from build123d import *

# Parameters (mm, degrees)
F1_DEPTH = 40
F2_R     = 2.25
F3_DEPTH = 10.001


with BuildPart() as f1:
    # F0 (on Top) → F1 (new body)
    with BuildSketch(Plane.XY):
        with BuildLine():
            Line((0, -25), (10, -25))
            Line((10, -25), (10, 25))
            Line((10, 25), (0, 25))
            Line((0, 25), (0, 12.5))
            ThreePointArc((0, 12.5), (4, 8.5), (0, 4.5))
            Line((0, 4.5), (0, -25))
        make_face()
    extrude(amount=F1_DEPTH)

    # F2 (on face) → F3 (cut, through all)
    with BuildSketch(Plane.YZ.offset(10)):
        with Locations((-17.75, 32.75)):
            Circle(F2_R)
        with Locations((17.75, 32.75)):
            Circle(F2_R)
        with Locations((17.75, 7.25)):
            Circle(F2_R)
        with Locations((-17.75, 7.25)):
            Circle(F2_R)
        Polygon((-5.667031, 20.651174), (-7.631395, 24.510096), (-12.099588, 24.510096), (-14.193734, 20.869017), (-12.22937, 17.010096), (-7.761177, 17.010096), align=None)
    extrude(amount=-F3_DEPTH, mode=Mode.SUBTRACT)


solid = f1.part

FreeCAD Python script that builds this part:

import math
import FreeCAD as App
import Part
import Sketcher
from FreeCAD import Vector
Q = App.Units.Quantity

doc = App.newDocument("Part")
params = doc.addObject("Spreadsheet::Sheet", "Params")
for row, (alias, value) in enumerate([
    ("sketch1_radius", "4 mm"),
    ("sketch1_width", "10 mm"),
    ("sketch1_height", "50 mm"),
    ("sketch1_height2", "12.5 mm"),
    ("pad1_length", "40 mm"),
    ("sketch2_diameter", "4.5 mm"),
], start=1):
    params.set(f"A{row}", alias)
    params.set(f"B{row}", "=" + value)
    params.setAlias(f"B{row}", alias)

body = doc.addObject("PartDesign::Body", "Body")

sketch1 = body.newObject("Sketcher::SketchObject", "Sketch")
sketch1.AttachmentSupport = (doc.getObject("XY_Plane"), [""])
sketch1.MapMode = "FlatFace"
sketch1.addGeometry(Part.LineSegment(Vector(0, -25, 0), Vector(10, -25, 0)), False)
sketch1.addGeometry(Part.LineSegment(Vector(10, -25, 0), Vector(10, 25, 0)), False)
sketch1.addGeometry(Part.LineSegment(Vector(10, 25, 0), Vector(0, 25, 0)), False)
sketch1.addGeometry(Part.LineSegment(Vector(0, 25, 0), Vector(0, 12.5, 0)), False)
sketch1.addGeometry(Part.ArcOfCircle(Part.Circle(Vector(0, 8.5, 0), Vector(0, 0, 1), 4), math.radians(-90), math.radians(90)), False)
sketch1.addGeometry(Part.LineSegment(Vector(0, 4.5, 0), Vector(0, -25, 0)), False)
sketch1.addConstraint(Sketcher.Constraint("Coincident", 0, 2, 1, 1))
sketch1.addConstraint(Sketcher.Constraint("Coincident", 1, 2, 2, 1))
sketch1.addConstraint(Sketcher.Constraint("Coincident", 2, 2, 3, 1))
sketch1.addConstraint(Sketcher.Constraint("Coincident", 3, 2, 4, 2))
sketch1.addConstraint(Sketcher.Constraint("Coincident", 4, 1, 5, 1))
sketch1.addConstraint(Sketcher.Constraint("Coincident", 5, 2, 0, 1))
sketch1.addConstraint(Sketcher.Constraint("Horizontal", 0))
sketch1.addConstraint(Sketcher.Constraint("Vertical", 1))
sketch1.addConstraint(Sketcher.Constraint("Horizontal", 2))
sketch1.addConstraint(Sketcher.Constraint("Vertical", 3))
sketch1.addConstraint(Sketcher.Constraint("Vertical", 5))
sketch1.addConstraint(Sketcher.Constraint("Symmetric", 2, 2, 5, 2, -1, 1))
sketch1.addConstraint(Sketcher.Constraint("PointOnObject", 4, 3, -2))
sketch1.addConstraint(Sketcher.Constraint("PointOnObject", 2, 2, -2))
sketch1.addConstraint(Sketcher.Constraint("Radius", 4, Q("4 mm")))
sketch1.addConstraint(Sketcher.Constraint("DistanceX", 0, 1, 0, 2, Q("10 mm")))
sketch1.addConstraint(Sketcher.Constraint("DistanceY", 1, 1, 1, 2, Q("50 mm")))
sketch1.addConstraint(Sketcher.Constraint("DistanceY", 3, 2, 3, 1, Q("12.5 mm")))
sketch1.setExpression("Constraints[14]", "Params.sketch1_radius")
sketch1.setExpression("Constraints[15]", "Params.sketch1_width")
sketch1.setExpression("Constraints[16]", "Params.sketch1_height")
sketch1.setExpression("Constraints[17]", "Params.sketch1_height2")
pad1 = body.newObject("PartDesign::Pad", "Pad")
pad1.Profile = sketch1
pad1.setExpression("Length", "Params.pad1_length")

sketch2 = body.newObject("Sketcher::SketchObject", "Sketch001")
sketch2.AttachmentSupport = (doc.getObject("YZ_Plane"), [""])
sketch2.MapMode = "FlatFace"
sketch2.AttachmentOffset = App.Placement(Vector(0, 0, 10), App.Rotation())
sketch2.addGeometry(Part.Circle(Vector(-17.75, 32.75, 0), Vector(0, 0, 1), 2.25), False)
sketch2.addGeometry(Part.Circle(Vector(17.75, 32.75, 0), Vector(0, 0, 1), 2.25), False)
sketch2.addGeometry(Part.Circle(Vector(17.75, 7.25, 0), Vector(0, 0, 1), 2.25), False)
sketch2.addGeometry(Part.Circle(Vector(-17.75, 7.25, 0), Vector(0, 0, 1), 2.25), False)
sketch2.addGeometry(Part.LineSegment(Vector(-5.667031, 20.651174, 0), Vector(-7.631395, 24.510096, 0)), False)
sketch2.addGeometry(Part.LineSegment(Vector(-7.631395, 24.510096, 0), Vector(-12.099588, 24.510096, 0)), False)
sketch2.addGeometry(Part.LineSegment(Vector(-12.099588, 24.510096, 0), Vector(-14.193734, 20.869017, 0)), False)
sketch2.addGeometry(Part.LineSegment(Vector(-14.193734, 20.869017, 0), Vector(-12.22937, 17.010096, 0)), False)
sketch2.addGeometry(Part.LineSegment(Vector(-12.22937, 17.010096, 0), Vector(-7.761177, 17.010096, 0)), False)
sketch2.addGeometry(Part.LineSegment(Vector(-7.761177, 17.010096, 0), Vector(-5.667031, 20.651174, 0)), False)
sketch2.addConstraint(Sketcher.Constraint("Coincident", 4, 2, 5, 1))
sketch2.addConstraint(Sketcher.Constraint("Coincident", 5, 2, 6, 1))
sketch2.addConstraint(Sketcher.Constraint("Coincident", 6, 2, 7, 1))
sketch2.addConstraint(Sketcher.Constraint("Coincident", 7, 2, 8, 1))
sketch2.addConstraint(Sketcher.Constraint("Coincident", 8, 2, 9, 1))
sketch2.addConstraint(Sketcher.Constraint("Coincident", 9, 2, 4, 1))
sketch2.addConstraint(Sketcher.Constraint("Horizontal", 5))
sketch2.addConstraint(Sketcher.Constraint("Horizontal", 8))
sketch2.addConstraint(Sketcher.Constraint("Equal", 0, 1))
sketch2.addConstraint(Sketcher.Constraint("Equal", 1, 2))
sketch2.addConstraint(Sketcher.Constraint("Equal", 2, 3))
sketch2.addConstraint(Sketcher.Constraint("Symmetric", 0, 3, 1, 3, -2))
sketch2.addConstraint(Sketcher.Constraint("Symmetric", 2, 3, 3, 3, -2))
sketch2.addConstraint(Sketcher.Constraint("Parallel", 4, 7))
sketch2.addConstraint(Sketcher.Constraint("Parallel", 6, 9))
sketch2.addConstraint(Sketcher.Constraint("Vertical", 1, 3, 2, 3))
sketch2.addConstraint(Sketcher.Constraint("Equal", 5, 8))
sketch2.addConstraint(Sketcher.Constraint("Diameter", 0, Q("4.5 mm")))
sketch2.addConstraint(Sketcher.Constraint("DistanceX", 0, 3, 1, 3, Q("35.5 mm")))
sketch2.addConstraint(Sketcher.Constraint("DistanceY", 2, 3, 1, 3, Q("25.5 mm")))
sketch2.addConstraint(Sketcher.Constraint("DistanceY", 7, 2, 5, 2, Q("7.5 mm")))
sketch2.addConstraint(Sketcher.Constraint("DistanceY", -1, 1, 0, 3, Q("32.75 mm")))
sketch2.addConstraint(Sketcher.Constraint("DistanceX", 5, 2, 5, 1, Q("4.468193 mm")))
sketch2.addConstraint(Sketcher.Constraint("DistanceX", 5, 2, -1, 1, Q("12.099588 mm")))
sketch2.addConstraint(Sketcher.Constraint("DistanceX", 7, 2, -1, 1, Q("12.22937 mm")))
sketch2.addConstraint(Sketcher.Constraint("DistanceX", 9, 2, -1, 1, Q("5.667031 mm")))
sketch2.addConstraint(Sketcher.Constraint("DistanceY", 6, 2, 5, 2, Q("3.641079 mm")))
sketch2.addConstraint(Sketcher.Constraint("DistanceY", -1, 1, 4, 2, Q("24.510096 mm")))
sketch2.setExpression("Constraints[17]", "Params.sketch2_diameter")
pocket1 = body.newObject("PartDesign::Pocket", "Pocket")
pocket1.Profile = sketch2
pocket1.Type = "ThroughAll"

doc.recompute()
